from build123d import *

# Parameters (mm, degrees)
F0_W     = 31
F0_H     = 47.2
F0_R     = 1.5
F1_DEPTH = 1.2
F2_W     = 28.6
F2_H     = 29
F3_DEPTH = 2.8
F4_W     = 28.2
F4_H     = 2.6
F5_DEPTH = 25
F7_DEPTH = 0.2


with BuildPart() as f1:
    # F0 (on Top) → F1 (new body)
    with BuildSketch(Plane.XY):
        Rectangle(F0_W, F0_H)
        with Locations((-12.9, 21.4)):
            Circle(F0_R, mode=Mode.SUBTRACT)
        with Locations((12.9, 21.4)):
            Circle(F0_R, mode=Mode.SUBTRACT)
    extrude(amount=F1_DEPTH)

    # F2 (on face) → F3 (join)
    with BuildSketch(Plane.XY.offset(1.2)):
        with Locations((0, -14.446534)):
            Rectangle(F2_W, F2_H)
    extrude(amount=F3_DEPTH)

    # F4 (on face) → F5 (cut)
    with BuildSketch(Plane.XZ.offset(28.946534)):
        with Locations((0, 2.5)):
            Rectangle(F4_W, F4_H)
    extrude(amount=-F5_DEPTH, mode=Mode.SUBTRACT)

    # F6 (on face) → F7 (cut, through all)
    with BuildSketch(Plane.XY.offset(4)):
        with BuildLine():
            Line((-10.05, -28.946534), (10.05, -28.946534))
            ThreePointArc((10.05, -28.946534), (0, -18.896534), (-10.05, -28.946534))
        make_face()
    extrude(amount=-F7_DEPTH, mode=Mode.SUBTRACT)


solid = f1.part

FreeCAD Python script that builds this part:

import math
import FreeCAD as App
import Part
import Sketcher

doc = App.newDocument("Part")
body = doc.addObject("PartDesign::Body", "Body")

# Sketch on XY plane
sketch1 = body.newObject("Sketcher::SketchObject", "Sketch")
sketch1.AttachmentSupport = (doc.getObject("XY_Plane"), [""])
sketch1.MapMode = "FlatFace"
sketch1.addGeometry(Part.LineSegment(App.Vector(-15.5, 23.6, 0), App.Vector(-15.5, -23.6, 0)), False)
sketch1.addGeometry(Part.LineSegment(App.Vector(-15.5, -23.6, 0), App.Vector(15.5, -23.6, 0)), False)
sketch1.addGeometry(Part.LineSegment(App.Vector(15.5, -23.6, 0), App.Vector(15.5, 23.6, 0)), False)
sketch1.addGeometry(Part.LineSegment(App.Vector(15.5, 23.6, 0), App.Vector(-15.5, 23.6, 0)), False)
sketch1.addGeometry(Part.Circle(App.Vector(-12.9, 21.4, 0), App.Vector(0, 0, 1), 1.5), False)
sketch1.addGeometry(Part.Circle(App.Vector(12.9, 21.4, 0), App.Vector(0, 0, 1), 1.5), False)
sketch1.addConstraint(Sketcher.Constraint("Coincident", 0, 2, 1, 1))
sketch1.addConstraint(Sketcher.Constraint("Coincident", 1, 2, 2, 1))
sketch1.addConstraint(Sketcher.Constraint("Coincident", 2, 2, 3, 1))
sketch1.addConstraint(Sketcher.Constraint("Coincident", 3, 2, 0, 1))
sketch1.addConstraint(Sketcher.Constraint("Vertical", 0))
sketch1.addConstraint(Sketcher.Constraint("Horizontal", 1))
sketch1.addConstraint(Sketcher.Constraint("Vertical", 2))
sketch1.addConstraint(Sketcher.Constraint("Horizontal", 3))
sketch1.addConstraint(Sketcher.Constraint("Equal", 4, 5))
sketch1.addConstraint(Sketcher.Constraint("Symmetric", 0, 2, 2, 2, -1, 1))
sketch1.addConstraint(Sketcher.Constraint("Symmetric", 4, 3, 5, 3, -2))
sketch1.addConstraint(Sketcher.Constraint("Diameter", 4, 3.0))
sketch1.addConstraint(Sketcher.Constraint("DistanceX", 1, 1, 1, 2, 31.0))
sketch1.addConstraint(Sketcher.Constraint("DistanceY", 0, 2, 0, 1, 47.2))
sketch1.addConstraint(Sketcher.Constraint("DistanceY", 0, 2, 4, 3, 45.0))
sketch1.addConstraint(Sketcher.Constraint("DistanceX", 4, 3, -1, 1, 12.9))
pad1 = body.newObject("PartDesign::Pad", "Pad")
pad1.Profile = sketch1
pad1.Length = 1.2

# Sketch on XY plane
sketch2 = body.newObject("Sketcher::SketchObject", "Sketch001")
sketch2.AttachmentSupport = (doc.getObject("XY_Plane"), [""])
sketch2.MapMode = "FlatFace"
sketch2.AttachmentOffset = App.Placement(App.Vector(0, 0, 1.2), App.Rotation())
sketch2.addGeometry(Part.LineSegment(App.Vector(-14.3, 0.053466, 0), App.Vector(-14.3, -28.946534, 0)), False)
sketch2.addGeometry(Part.LineSegment(App.Vector(-14.3, -28.946534, 0), App.Vector(14.3, -28.946534, 0)), False)
sketch2.addGeometry(Part.LineSegment(App.Vector(14.3, -28.946534, 0), App.Vector(14.3, 0.053466, 0)), False)
sketch2.addGeometry(Part.LineSegment(App.Vector(14.3, 0.053466, 0), App.Vector(-14.3, 0.053466, 0)), False)
sketch2.addConstraint(Sketcher.Constraint("Coincident", 0, 2, 1, 1))
sketch2.addConstraint(Sketcher.Constraint("Coincident", 1, 2, 2, 1))
sketch2.addConstraint(Sketcher.Constraint("Coincident", 2, 2, 3, 1))
sketch2.addConstraint(Sketcher.Constraint("Coincident", 3, 2, 0, 1))
sketch2.addConstraint(Sketcher.Constraint("Vertical", 0))
sketch2.addConstraint(Sketcher.Constraint("Horizontal", 1))
sketch2.addConstraint(Sketcher.Constraint("Vertical", 2))
sketch2.addConstraint(Sketcher.Constraint("Horizontal", 3))
sketch2.addConstraint(Sketcher.Constraint("DistanceY", 0, 2, 0, 1, 29.0))
sketch2.addConstraint(Sketcher.Constraint("DistanceX", 1, 1, 1, 2, 28.6))
sketch2.addConstraint(Sketcher.Constraint("DistanceX", 0, 2, -1, 1, 14.3))
sketch2.addConstraint(Sketcher.Constraint("DistanceY", 0, 2, -1, 1, 28.946534))
pad2 = body.newObject("PartDesign::Pad", "Pad001")
pad2.Profile = sketch2
pad2.Length = 2.8

# Sketch on XZ plane
sketch3 = body.newObject("Sketcher::SketchObject", "Sketch002")
sketch3.AttachmentSupport = (doc.getObject("XZ_Plane"), [""])
sketch3.MapMode = "FlatFace"
sketch3.AttachmentOffset = App.Placement(App.Vector(0, 0, 28.946534), App.Rotation())
sketch3.addGeometry(Part.LineSegment(App.Vector(-14.1, 3.8, 0), App.Vector(-14.1, 1.2, 0)), False)
sketch3.addGeometry(Part.LineSegment(App.Vector(-14.1, 1.2, 0), App.Vector(14.1, 1.2, 0)), False)
sketch3.addGeometry(Part.LineSegment(App.Vector(14.1, 1.2, 0), App.Vector(14.1, 3.8, 0)), False)
sketch3.addGeometry(Part.LineSegment(App.Vector(14.1, 3.8, 0), App.Vector(-14.1, 3.8, 0)), False)
sketch3.addConstraint(Sketcher.Constraint("Coincident", 0, 2, 1, 1))
sketch3.addConstraint(Sketcher.Constraint("Coincident", 1, 2, 2, 1))
sketch3.addConstraint(Sketcher.Constraint("Coincident", 2, 2, 3, 1))
sketch3.addConstraint(Sketcher.Constraint("Coincident", 3, 2, 0, 1))
sketch3.addConstraint(Sketcher.Constraint("Vertical", 0))
sketch3.addConstraint(Sketcher.Constraint("Horizontal", 1))
sketch3.addConstraint(Sketcher.Constraint("Vertical", 2))
sketch3.addConstraint(Sketcher.Constraint("Horizontal", 3))
sketch3.addConstraint(Sketcher.Constraint("DistanceX", 1, 1, 1, 2, 28.2))
sketch3.addConstraint(Sketcher.Constraint("DistanceY", 0, 2, 0, 1, 2.6))
sketch3.addConstraint(Sketcher.Constraint("DistanceX", 0, 2, -1, 1, 14.1))
sketch3.addConstraint(Sketcher.Constraint("DistanceY", -1, 1, 0, 2, 1.2))
pocket1 = body.newObject("PartDesign::Pocket", "Pocket")
pocket1.Profile = sketch3
pocket1.Length = 25

# Sketch on XY plane
sketch4 = body.newObject("Sketcher::SketchObject", "Sketch003")
sketch4.AttachmentSupport = (doc.getObject("XY_Plane"), [""])
sketch4.MapMode = "FlatFace"
sketch4.AttachmentOffset = App.Placement(App.Vector(0, 0, 4), App.Rotation())
sketch4.addGeometry(Part.LineSegment(App.Vector(-10.05, -28.946534, 0), App.Vector(10.05, -28.946534, 0)), False)
sketch4.addGeometry(Part.ArcOfCircle(Part.Circle(App.Vector(0, -28.946534, 0), App.Vector(0, 0, 1), 10.05), math.radians(0), math.radians(180)), False)
sketch4.addConstraint(Sketcher.Constraint("Coincident", 0, 1, 1, 2))
sketch4.addConstraint(Sketcher.Constraint("Coincident", 1, 1, 0, 2))
sketch4.addConstraint(Sketcher.Constraint("Horizontal", 0))
sketch4.addConstraint(Sketcher.Constraint("PointOnObject", 1, 3, -2))
sketch4.addConstraint(Sketcher.Constraint("Horizontal", 1, 3, 0, 1))
sketch4.addConstraint(Sketcher.Constraint("Radius", 1, 10.05))
sketch4.addConstraint(Sketcher.Constraint("DistanceY", 1, 3, -1, 1, 28.946534))
pocket2 = body.newObject("PartDesign::Pocket", "Pocket001")
pocket2.Profile = sketch4
pocket2.Length = 0.2

doc.recompute()
